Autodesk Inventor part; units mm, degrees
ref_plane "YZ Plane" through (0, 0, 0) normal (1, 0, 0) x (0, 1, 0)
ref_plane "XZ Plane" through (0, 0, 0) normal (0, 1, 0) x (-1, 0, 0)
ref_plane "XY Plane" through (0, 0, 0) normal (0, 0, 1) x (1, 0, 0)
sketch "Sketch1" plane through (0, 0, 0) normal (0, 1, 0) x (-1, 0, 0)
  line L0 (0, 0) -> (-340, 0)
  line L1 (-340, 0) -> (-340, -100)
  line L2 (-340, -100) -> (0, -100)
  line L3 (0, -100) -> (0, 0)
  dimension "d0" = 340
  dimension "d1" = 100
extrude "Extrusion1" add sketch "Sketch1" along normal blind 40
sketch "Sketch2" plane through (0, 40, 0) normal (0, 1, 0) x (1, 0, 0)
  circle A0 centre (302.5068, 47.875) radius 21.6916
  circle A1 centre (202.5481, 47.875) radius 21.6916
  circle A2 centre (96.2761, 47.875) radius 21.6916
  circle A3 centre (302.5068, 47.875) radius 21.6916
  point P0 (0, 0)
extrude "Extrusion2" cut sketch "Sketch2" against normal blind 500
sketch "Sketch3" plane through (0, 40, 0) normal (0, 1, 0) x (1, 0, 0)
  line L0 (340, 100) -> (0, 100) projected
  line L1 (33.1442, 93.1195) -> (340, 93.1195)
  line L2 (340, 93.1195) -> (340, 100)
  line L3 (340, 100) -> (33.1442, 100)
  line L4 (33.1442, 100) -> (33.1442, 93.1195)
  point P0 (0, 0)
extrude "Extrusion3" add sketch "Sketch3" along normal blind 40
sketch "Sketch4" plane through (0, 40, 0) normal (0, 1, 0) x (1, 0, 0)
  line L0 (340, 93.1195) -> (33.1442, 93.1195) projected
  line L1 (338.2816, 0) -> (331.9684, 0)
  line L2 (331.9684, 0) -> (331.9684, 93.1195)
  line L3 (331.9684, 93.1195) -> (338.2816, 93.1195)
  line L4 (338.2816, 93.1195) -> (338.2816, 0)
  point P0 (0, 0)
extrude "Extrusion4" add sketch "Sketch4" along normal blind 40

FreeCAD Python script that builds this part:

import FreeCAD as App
import Part
import Sketcher


def add_polygon(sketch, points):
    """Adds a closed chain of lines whose ends are joined by coincident constraints."""
    first, n = sketch.GeometryCount, len(points)
    for a, b in zip(points, points[1:] + points[:1]):
        sketch.addGeometry(Part.LineSegment(App.Vector(*a, 0), App.Vector(*b, 0)), False)
    for i in range(n):
        sketch.addConstraint(Sketcher.Constraint("Coincident", first + i, 2, first + (i + 1) % n, 1))

doc = App.newDocument("Part")
body = doc.addObject("PartDesign::Body", "Body")

# Sketch on XZ plane
sketch1 = body.newObject("Sketcher::SketchObject", "Sketch")
sketch1.AttachmentSupport = (doc.getObject("XZ_Plane"), [""])
sketch1.MapMode = "FlatFace"
add_polygon(sketch1, [(0, -100), (0, 0), (340, 0), (340, -100)])  # lines 0-3
sketch1.addConstraint([
    Sketcher.Constraint("Vertical", 0),
    Sketcher.Constraint("Horizontal", 1),
    Sketcher.Constraint("Vertical", 2),
    Sketcher.Constraint("Horizontal", 3),
    Sketcher.Constraint("Coincident", 0, 2, -1, 1),
    Sketcher.Constraint("DistanceX", 1, 1, 1, 2, 340.0),
    Sketcher.Constraint("DistanceY", 0, 1, 0, 2, 100.0),
])
pad1 = body.newObject("PartDesign::Pad", "Pad")
pad1.Profile = sketch1
pad1.Length = 40
pad1.Reversed = True

# Sketch on XZ plane
sketch2 = body.newObject("Sketcher::SketchObject", "Sketch001")
sketch2.AttachmentSupport = (doc.getObject("XZ_Plane"), [""])
sketch2.MapMode = "FlatFace"
sketch2.AttachmentOffset = App.Placement(App.Vector(0, 0, -40), App.Rotation())
sketch2.addGeometry([
    Part.Circle(App.Vector(303, -48, 0), App.Vector(0, 0, 1), 22),
    Part.Circle(App.Vector(203, -48, 0), App.Vector(0, 0, 1), 22),
    Part.Circle(App.Vector(96, -48, 0), App.Vector(0, 0, 1), 22),
], False)
sketch2.addConstraint([
    Sketcher.Constraint("Equal", 0, 1),
    Sketcher.Constraint("Equal", 1, 2),
    Sketcher.Constraint("Horizontal", 0, 3, 1, 3),
    Sketcher.Constraint("Horizontal", 1, 3, 2, 3),
    Sketcher.Constraint("Diameter", 0, 43.3832),
    Sketcher.Constraint("DistanceY", 0, 3, -1, 1, 47.875),
    Sketcher.Constraint("DistanceX", -1, 1, 1, 3, 202.548),
    Sketcher.Constraint("DistanceX", -1, 1, 2, 3, 96.276),
    Sketcher.Constraint("DistanceX", -1, 1, 0, 3, 302.5068),
])
pocket1 = body.newObject("PartDesign::Pocket", "Pocket")
pocket1.Profile = sketch2
pocket1.Length = 500
pocket1.Reversed = True

# Sketch on XZ plane
sketch3 = body.newObject("Sketcher::SketchObject", "Sketch002")
sketch3.AttachmentSupport = (doc.getObject("XZ_Plane"), [""])
sketch3.MapMode = "FlatFace"
sketch3.AttachmentOffset = App.Placement(App.Vector(0, 0, -40), App.Rotation())
add_polygon(sketch3, [(340, -93), (340, -100), (33, -100), (33, -93)])  # lines 0-3
sketch3.addConstraint([
    Sketcher.Constraint("Vertical", 0),
    Sketcher.Constraint("Horizontal", 1),
    Sketcher.Constraint("Vertical", 2),
    Sketcher.Constraint("Horizontal", 3),
    Sketcher.Constraint("DistanceX", -1, 1, 0, 2, 340.0),
    Sketcher.Constraint("DistanceY", 0, 2, -1, 1, 100.0),
    Sketcher.Constraint("DistanceX", 1, 2, 1, 1, 306.8558),
    Sketcher.Constraint("DistanceY", 0, 2, 0, 1, 6.8805),
])
pad2 = body.newObject("PartDesign::Pad", "Pad001")
pad2.Profile = sketch3
pad2.Length = 40
pad2.Reversed = True

# Sketch on XZ plane
sketch4 = body.newObject("Sketcher::SketchObject", "Sketch003")
sketch4.AttachmentSupport = (doc.getObject("XZ_Plane"), [""])
sketch4.MapMode = "FlatFace"
sketch4.AttachmentOffset = App.Placement(App.Vector(0, 0, -40), App.Rotation())
add_polygon(sketch4, [(338, 0), (338, -93), (332, -93), (332, 0)])  # lines 0-3
sketch4.addConstraint([
    Sketcher.Constraint("Vertical", 0),
    Sketcher.Constraint("Horizontal", 1),
    Sketcher.Constraint("Vertical", 2),
    Sketcher.Constraint("Horizontal", 3),
    Sketcher.Constraint("PointOnObject", 2, 2, -1),
    Sketcher.Constraint("DistanceX", 1, 2, 1, 1, 6.3132),
    Sketcher.Constraint("DistanceY", 0, 2, 0, 1, 93.1195),
    Sketcher.Constraint("DistanceX", -1, 1, 0, 2, 338.2816),
])
pad3 = body.newObject("PartDesign::Pad", "Pad002")
pad3.Profile = sketch4
pad3.Length = 40
pad3.Reversed = True

doc.recompute()
